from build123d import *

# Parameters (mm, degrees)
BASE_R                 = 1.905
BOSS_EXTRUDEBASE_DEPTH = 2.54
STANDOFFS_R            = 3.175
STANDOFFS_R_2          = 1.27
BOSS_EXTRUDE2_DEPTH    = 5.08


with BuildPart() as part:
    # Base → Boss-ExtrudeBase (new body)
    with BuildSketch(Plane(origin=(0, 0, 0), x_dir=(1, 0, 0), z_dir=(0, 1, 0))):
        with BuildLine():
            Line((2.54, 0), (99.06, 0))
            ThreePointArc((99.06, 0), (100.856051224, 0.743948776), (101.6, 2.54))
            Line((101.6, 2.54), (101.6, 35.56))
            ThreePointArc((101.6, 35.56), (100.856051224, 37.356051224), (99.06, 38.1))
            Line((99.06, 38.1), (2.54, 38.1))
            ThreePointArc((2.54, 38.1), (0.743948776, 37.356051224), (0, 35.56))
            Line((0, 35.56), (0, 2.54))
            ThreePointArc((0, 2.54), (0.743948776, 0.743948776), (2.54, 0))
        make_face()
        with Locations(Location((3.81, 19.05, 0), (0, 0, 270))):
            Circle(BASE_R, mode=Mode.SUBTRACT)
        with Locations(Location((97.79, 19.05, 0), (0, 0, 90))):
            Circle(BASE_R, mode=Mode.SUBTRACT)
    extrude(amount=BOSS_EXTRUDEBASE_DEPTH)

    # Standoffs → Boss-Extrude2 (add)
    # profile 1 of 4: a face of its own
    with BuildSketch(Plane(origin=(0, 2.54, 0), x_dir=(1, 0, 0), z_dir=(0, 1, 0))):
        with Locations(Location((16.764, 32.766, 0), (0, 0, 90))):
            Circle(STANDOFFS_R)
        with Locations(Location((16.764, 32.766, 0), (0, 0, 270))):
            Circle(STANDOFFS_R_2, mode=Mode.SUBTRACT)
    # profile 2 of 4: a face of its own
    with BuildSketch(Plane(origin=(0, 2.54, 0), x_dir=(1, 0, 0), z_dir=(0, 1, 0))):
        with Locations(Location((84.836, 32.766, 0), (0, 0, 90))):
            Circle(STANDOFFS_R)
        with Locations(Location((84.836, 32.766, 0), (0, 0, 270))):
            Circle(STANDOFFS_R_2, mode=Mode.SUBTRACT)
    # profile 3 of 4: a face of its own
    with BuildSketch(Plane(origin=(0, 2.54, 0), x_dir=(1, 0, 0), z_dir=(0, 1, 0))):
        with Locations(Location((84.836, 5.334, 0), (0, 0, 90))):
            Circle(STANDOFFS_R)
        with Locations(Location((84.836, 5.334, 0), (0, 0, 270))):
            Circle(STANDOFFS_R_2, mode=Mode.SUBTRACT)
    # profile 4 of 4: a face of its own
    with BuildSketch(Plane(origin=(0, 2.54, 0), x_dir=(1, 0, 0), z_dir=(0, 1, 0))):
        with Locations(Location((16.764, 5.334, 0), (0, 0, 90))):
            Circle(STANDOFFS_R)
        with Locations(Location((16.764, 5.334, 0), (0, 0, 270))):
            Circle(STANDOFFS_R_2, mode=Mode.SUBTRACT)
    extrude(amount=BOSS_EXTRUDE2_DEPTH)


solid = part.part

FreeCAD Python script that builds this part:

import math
import FreeCAD as App
import Part
import Sketcher
Q = App.Units.Quantity

doc = App.newDocument("Part")
params = doc.addObject("Spreadsheet::Sheet", "Params")
for row, (alias, value) in enumerate([
    ("sketch1_radius", "0.1 in"),
    ("sketch1_diameter", "0.15 in"),
    ("sketch1_width", "3.8 in"),
    ("sketch1_height", "1.3 in"),
    ("pad1_length", "0.1 in"),
    ("sketch2_diameter", "0.1 in"),
    ("sketch2_diameter2", "0.25 in"),
    ("pad2_length", "0.2 in"),
], start=1):
    params.set(f"A{row}", alias)
    params.set(f"B{row}", "=" + value)
    params.setAlias(f"B{row}", alias)

body = doc.addObject("PartDesign::Body", "Body")

# Sketch on XZ plane
sketch1 = body.newObject("Sketcher::SketchObject", "Sketch")
sketch1.AttachmentSupport = (doc.getObject("XZ_Plane"), [""])
sketch1.MapMode = "FlatFace"
sketch1.addGeometry([
    Part.LineSegment(App.Vector(2.54, 0, 0), App.Vector(99.06, 0, 0)),  # 0
    Part.ArcOfCircle(Part.Circle(App.Vector(99.06, -2.54, 0), App.Vector(0, 0, 1), 2.54), math.radians(0), math.radians(90)),  # 1
    Part.LineSegment(App.Vector(101.6, -2.54, 0), App.Vector(101.6, -35.56, 0)),  # 2
    Part.ArcOfCircle(Part.Circle(App.Vector(99.06, -35.56, 0), App.Vector(0, 0, 1), 2.54), math.radians(-90), math.radians(0)),  # 3
    Part.LineSegment(App.Vector(99.06, -38.1, 0), App.Vector(2.54, -38.1, 0)),  # 4
    Part.ArcOfCircle(Part.Circle(App.Vector(2.54, -35.56, 0), App.Vector(0, 0, 1), 2.54), math.radians(-180), math.radians(-90)),  # 5
    Part.LineSegment(App.Vector(0, -35.56, 0), App.Vector(0, -2.54, 0)),  # 6
    Part.ArcOfCircle(Part.Circle(App.Vector(2.54, -2.54, 0), App.Vector(0, 0, 1), 2.54), math.radians(90), math.radians(180)),  # 7
    Part.Circle(App.Vector(3.81, -19.05, 0), App.Vector(0, 0, 1), 1.905),  # 8
    Part.Circle(App.Vector(97.79, -19.05, 0), App.Vector(0, 0, 1), 1.905),  # 9
], False)
sketch1.addConstraint([
    Sketcher.Constraint("Tangent", 0, 2, 1, 2),
    Sketcher.Constraint("Tangent", 1, 1, 2, 1),
    Sketcher.Constraint("Tangent", 2, 2, 3, 2),
    Sketcher.Constraint("Tangent", 3, 1, 4, 1),
    Sketcher.Constraint("Tangent", 4, 2, 5, 2),
    Sketcher.Constraint("Tangent", 5, 1, 6, 1),
    Sketcher.Constraint("Tangent", 6, 2, 7, 2),
    Sketcher.Constraint("Tangent", 7, 1, 0, 1),
    Sketcher.Constraint("Horizontal", 0),
    Sketcher.Constraint("Vertical", 2),
    Sketcher.Constraint("Horizontal", 4),
    Sketcher.Constraint("Vertical", 6),
    Sketcher.Constraint("Equal", 1, 3),
    Sketcher.Constraint("Equal", 3, 5),
    Sketcher.Constraint("Equal", 5, 7),
    Sketcher.Constraint("Equal", 8, 9),
    Sketcher.Constraint("PointOnObject", 0, 2, -1),
    Sketcher.Constraint("PointOnObject", 5, 1, -2),
    Sketcher.Constraint("Horizontal", 8, 3, 9, 3),
    Sketcher.Constraint("Radius", 1, Q("0.1 in")),
    Sketcher.Constraint("Diameter", 8, Q("0.15 in")),
    Sketcher.Constraint("DistanceX", 0, 1, 0, 2, Q("3.8 in")),
    Sketcher.Constraint("DistanceY", 2, 2, 2, 1, Q("1.3 in")),
    Sketcher.Constraint("DistanceX", 8, 3, 9, 3, Q("3.7 in")),
    Sketcher.Constraint("DistanceX", -1, 1, 8, 3, Q("0.15 in")),
    Sketcher.Constraint("DistanceY", 8, 3, -1, 1, Q("0.75 in")),
])
sketch1.setExpression("Constraints[19]", "Params.sketch1_radius")
sketch1.setExpression("Constraints[20]", "Params.sketch1_diameter")
sketch1.setExpression("Constraints[21]", "Params.sketch1_width")
sketch1.setExpression("Constraints[22]", "Params.sketch1_height")
pad1 = body.newObject("PartDesign::Pad", "Pad")
pad1.Profile = sketch1
pad1.setExpression("Length", "Params.pad1_length")
pad1.Reversed = True

# Sketch on XZ plane
sketch2 = body.newObject("Sketcher::SketchObject", "Sketch001")
sketch2.AttachmentSupport = (doc.getObject("XZ_Plane"), [""])
sketch2.MapMode = "FlatFace"
sketch2.AttachmentOffset = App.Placement(App.Vector(0, 0, -0.1 * 25.4), App.Rotation())
sketch2.addGeometry([
    Part.Circle(App.Vector(16.764, -32.766, 0), App.Vector(0, 0, 1), 3.175),  # 0
    Part.Circle(App.Vector(16.764, -32.766, 0), App.Vector(0, 0, 1), 1.27),  # 1
    Part.Circle(App.Vector(84.836, -32.766, 0), App.Vector(0, 0, 1), 3.175),  # 2
    Part.Circle(App.Vector(84.836, -32.766, 0), App.Vector(0, 0, 1), 1.27),  # 3
    Part.Circle(App.Vector(84.836, -5.334, 0), App.Vector(0, 0, 1), 3.175),  # 4
    Part.Circle(App.Vector(84.836, -5.334, 0), App.Vector(0, 0, 1), 1.27),  # 5
    Part.Circle(App.Vector(16.764, -5.334, 0), App.Vector(0, 0, 1), 3.175),  # 6
    Part.Circle(App.Vector(16.764, -5.334, 0), App.Vector(0, 0, 1), 1.27),  # 7
], False)
sketch2.addConstraint([
    Sketcher.Constraint("Coincident", 1, 3, 0, 3),
    Sketcher.Constraint("Coincident", 3, 3, 2, 3),
    Sketcher.Constraint("Coincident", 5, 3, 4, 3),
    Sketcher.Constraint("Coincident", 7, 3, 6, 3),
    Sketcher.Constraint("Equal", 0, 2),
    Sketcher.Constraint("Equal", 1, 3),
    Sketcher.Constraint("Equal", 2, 4),
    Sketcher.Constraint("Equal", 3, 5),
    Sketcher.Constraint("Equal", 4, 6),
    Sketcher.Constraint("Equal", 5, 7),
    Sketcher.Constraint("Horizontal", 1, 3, 2, 3),
    Sketcher.Constraint("Horizontal", 5, 3, 6, 3),
    Sketcher.Constraint("Vertical", 3, 3, 4, 3),
    Sketcher.Constraint("Vertical", 1, 3, 6, 3),
    Sketcher.Constraint("Diameter", 1, Q("0.1 in")),
    Sketcher.Constraint("Diameter", 0, Q("0.25 in")),
    Sketcher.Constraint("DistanceX", -1, 1, 0, 3, Q("0.66 in")),
    Sketcher.Constraint("DistanceY", 0, 3, -1, 1, Q("1.29 in")),
    Sketcher.Constraint("DistanceX", -1, 1, 2, 3, Q("3.34 in")),
    Sketcher.Constraint("DistanceY", 4, 3, -1, 1, Q("0.21 in")),
])
sketch2.setExpression("Constraints[14]", "Params.sketch2_diameter")
sketch2.setExpression("Constraints[15]", "Params.sketch2_diameter2")
pad2 = body.newObject("PartDesign::Pad", "Pad001")
pad2.Profile = sketch2
pad2.setExpression("Length", "Params.pad2_length")
pad2.Reversed = True

doc.recompute()
